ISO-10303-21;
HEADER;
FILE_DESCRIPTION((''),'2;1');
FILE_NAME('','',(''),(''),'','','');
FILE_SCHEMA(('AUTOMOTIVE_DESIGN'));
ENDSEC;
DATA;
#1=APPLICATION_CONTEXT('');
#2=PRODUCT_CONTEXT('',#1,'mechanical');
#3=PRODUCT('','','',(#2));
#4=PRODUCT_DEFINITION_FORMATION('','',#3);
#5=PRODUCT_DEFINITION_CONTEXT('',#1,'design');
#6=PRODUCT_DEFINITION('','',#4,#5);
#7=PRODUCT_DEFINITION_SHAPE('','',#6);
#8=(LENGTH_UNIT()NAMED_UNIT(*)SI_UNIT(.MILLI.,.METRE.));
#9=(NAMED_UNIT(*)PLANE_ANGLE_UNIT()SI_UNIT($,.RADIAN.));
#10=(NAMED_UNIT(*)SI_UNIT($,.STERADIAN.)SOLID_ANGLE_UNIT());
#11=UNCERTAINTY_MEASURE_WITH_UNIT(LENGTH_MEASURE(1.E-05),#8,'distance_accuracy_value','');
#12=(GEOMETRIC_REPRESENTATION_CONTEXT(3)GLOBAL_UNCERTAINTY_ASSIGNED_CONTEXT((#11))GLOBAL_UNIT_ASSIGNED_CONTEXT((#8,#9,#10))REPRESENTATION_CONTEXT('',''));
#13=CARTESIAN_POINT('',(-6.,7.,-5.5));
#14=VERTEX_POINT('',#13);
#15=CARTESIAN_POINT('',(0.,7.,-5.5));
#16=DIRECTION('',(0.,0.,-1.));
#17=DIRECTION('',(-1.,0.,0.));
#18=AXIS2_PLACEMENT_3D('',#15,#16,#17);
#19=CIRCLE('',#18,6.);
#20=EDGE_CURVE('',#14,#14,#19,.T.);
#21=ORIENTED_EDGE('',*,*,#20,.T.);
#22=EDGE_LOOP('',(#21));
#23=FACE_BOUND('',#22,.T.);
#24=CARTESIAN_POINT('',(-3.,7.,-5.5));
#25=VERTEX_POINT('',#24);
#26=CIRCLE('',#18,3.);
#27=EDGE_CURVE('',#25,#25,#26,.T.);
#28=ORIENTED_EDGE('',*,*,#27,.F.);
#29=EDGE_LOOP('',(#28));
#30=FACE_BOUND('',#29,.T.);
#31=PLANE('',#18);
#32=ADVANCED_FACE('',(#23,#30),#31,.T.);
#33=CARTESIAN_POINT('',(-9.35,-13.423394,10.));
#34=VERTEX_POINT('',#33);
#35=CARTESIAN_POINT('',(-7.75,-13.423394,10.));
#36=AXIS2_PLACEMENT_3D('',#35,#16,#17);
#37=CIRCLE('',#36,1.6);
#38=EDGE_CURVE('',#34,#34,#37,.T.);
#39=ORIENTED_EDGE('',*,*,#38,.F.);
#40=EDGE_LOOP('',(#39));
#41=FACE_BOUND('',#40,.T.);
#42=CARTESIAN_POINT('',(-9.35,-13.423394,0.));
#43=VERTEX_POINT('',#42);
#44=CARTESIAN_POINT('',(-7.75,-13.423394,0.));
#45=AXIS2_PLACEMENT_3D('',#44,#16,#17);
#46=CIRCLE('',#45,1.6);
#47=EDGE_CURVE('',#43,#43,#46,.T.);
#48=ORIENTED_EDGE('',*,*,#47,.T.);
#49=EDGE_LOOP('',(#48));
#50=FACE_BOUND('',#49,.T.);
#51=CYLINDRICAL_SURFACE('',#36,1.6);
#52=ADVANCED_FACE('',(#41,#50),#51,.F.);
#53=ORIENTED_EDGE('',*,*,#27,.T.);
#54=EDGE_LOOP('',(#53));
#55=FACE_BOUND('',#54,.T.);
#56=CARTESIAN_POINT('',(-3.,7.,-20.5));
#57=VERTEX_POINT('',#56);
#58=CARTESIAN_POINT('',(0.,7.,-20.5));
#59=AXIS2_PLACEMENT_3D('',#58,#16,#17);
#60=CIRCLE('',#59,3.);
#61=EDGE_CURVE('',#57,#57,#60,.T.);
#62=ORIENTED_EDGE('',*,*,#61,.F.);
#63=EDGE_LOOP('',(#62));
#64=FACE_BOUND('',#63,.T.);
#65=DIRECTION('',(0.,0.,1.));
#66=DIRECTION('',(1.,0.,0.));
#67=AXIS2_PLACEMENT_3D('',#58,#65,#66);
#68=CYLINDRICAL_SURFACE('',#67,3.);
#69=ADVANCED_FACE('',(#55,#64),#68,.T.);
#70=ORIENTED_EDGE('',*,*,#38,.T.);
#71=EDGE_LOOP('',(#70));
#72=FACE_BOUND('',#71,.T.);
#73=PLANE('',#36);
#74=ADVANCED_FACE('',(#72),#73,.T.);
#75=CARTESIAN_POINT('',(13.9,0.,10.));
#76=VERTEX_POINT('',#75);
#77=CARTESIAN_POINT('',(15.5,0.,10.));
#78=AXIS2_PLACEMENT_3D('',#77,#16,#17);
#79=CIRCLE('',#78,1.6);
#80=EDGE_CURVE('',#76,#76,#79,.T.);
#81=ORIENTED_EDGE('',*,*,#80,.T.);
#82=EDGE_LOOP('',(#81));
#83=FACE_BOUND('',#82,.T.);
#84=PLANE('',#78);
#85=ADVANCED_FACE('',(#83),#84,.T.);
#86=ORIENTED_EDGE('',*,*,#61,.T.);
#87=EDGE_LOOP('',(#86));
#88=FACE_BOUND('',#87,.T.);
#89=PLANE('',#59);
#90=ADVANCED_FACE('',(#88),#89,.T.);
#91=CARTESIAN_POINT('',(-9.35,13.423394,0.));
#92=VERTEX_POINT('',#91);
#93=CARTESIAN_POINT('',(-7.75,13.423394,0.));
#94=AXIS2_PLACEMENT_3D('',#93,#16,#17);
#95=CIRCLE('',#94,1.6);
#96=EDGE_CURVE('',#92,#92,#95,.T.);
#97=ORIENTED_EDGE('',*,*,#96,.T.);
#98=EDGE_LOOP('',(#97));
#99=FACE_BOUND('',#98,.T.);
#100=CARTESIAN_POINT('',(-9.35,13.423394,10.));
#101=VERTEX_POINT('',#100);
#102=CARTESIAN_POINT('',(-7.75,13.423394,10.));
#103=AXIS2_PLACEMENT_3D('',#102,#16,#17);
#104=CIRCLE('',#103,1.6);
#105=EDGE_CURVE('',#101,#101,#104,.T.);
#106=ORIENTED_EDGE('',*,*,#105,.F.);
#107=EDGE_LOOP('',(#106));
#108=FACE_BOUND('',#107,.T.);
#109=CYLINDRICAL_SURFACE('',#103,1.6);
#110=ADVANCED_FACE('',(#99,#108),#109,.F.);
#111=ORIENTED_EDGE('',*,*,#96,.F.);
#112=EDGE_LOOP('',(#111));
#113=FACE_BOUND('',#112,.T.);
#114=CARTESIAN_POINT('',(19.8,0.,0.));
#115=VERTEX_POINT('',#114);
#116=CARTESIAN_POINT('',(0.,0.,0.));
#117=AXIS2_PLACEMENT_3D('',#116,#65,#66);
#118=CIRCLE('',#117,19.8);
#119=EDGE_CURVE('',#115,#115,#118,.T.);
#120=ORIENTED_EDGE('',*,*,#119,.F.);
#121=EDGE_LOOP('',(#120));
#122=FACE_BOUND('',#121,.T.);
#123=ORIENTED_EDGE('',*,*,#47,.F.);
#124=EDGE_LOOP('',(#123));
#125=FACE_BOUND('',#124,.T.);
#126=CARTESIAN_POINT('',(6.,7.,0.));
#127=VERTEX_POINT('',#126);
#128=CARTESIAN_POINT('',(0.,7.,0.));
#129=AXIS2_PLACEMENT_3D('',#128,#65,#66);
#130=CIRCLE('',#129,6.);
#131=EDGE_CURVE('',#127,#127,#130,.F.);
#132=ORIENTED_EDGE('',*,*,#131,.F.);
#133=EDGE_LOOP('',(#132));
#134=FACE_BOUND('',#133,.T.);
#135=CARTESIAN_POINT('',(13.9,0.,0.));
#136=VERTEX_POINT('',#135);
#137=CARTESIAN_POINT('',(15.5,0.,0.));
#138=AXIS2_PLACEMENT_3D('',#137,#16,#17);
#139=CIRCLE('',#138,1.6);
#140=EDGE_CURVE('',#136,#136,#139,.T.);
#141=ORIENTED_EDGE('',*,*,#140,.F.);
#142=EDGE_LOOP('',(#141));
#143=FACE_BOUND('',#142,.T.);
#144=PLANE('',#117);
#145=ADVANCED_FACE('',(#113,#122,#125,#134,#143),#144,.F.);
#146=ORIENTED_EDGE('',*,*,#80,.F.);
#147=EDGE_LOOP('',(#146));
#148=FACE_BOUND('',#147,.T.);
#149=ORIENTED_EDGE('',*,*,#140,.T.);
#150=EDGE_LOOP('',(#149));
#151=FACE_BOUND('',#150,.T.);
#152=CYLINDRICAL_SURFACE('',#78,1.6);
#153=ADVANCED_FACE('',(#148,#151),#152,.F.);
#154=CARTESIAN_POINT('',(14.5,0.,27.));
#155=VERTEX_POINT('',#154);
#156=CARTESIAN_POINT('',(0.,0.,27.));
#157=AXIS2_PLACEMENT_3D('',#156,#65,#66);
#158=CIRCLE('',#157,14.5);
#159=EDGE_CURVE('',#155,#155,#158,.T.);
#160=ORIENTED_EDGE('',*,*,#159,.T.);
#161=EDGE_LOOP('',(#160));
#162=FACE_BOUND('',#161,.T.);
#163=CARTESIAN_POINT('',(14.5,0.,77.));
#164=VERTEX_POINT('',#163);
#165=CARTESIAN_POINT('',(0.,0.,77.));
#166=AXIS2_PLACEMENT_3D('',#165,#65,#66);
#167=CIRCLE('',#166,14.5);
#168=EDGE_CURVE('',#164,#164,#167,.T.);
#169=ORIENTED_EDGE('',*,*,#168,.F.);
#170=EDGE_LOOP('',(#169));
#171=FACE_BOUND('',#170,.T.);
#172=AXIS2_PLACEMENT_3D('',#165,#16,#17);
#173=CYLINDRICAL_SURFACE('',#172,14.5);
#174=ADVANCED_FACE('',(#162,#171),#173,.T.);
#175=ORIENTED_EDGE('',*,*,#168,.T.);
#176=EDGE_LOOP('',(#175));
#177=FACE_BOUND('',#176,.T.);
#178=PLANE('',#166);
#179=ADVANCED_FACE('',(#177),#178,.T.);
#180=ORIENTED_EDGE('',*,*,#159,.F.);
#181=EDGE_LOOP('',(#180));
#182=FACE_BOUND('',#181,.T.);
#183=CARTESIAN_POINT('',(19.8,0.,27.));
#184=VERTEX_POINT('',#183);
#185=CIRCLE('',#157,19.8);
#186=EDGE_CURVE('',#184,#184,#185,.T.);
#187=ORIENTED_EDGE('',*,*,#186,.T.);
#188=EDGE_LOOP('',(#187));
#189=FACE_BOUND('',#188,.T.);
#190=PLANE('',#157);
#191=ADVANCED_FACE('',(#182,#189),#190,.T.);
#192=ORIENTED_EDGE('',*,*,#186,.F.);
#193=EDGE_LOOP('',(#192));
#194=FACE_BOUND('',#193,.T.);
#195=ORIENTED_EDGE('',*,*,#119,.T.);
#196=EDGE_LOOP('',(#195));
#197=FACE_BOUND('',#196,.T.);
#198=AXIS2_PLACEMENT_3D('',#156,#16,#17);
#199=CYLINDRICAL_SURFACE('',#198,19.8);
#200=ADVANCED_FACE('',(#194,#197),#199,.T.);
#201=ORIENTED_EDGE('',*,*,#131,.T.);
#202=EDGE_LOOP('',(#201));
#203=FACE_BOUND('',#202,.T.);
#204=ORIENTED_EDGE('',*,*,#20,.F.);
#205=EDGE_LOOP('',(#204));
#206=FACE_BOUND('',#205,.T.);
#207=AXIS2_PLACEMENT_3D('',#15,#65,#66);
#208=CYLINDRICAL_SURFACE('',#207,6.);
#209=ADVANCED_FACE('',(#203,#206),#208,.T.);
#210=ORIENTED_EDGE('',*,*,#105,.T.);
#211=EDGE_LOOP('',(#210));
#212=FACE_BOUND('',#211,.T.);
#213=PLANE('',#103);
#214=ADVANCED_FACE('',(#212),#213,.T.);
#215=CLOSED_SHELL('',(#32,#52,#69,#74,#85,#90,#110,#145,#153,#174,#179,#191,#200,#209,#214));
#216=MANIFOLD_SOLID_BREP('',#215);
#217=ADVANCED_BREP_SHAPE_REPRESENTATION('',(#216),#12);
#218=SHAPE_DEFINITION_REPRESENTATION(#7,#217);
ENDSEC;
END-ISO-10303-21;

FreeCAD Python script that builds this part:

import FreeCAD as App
import Part
import Sketcher
from FreeCAD import Vector

doc = App.newDocument("Part")
body = doc.addObject("PartDesign::Body", "Body")

# Sketch on XY plane
sketch1 = doc.addObject("Sketcher::SketchObject", "Sketch")
body.addObject(sketch1)
sketch1.AttachmentSupport = (doc.XY_Plane, [""])
sketch1.MapMode = "FlatFace"
sketch1.addGeometry(Part.Circle(Vector(0, 0, 0), Vector(0, 0, 1), 20), False)
sketch1.addConstraint([
    Sketcher.Constraint("Coincident", 0, 3, -1, 1),
    Sketcher.Constraint("Diameter", 0, 39.6),
])
pad1 = doc.addObject("PartDesign::Pad", "Pad")
body.addObject(pad1)
pad1.Profile = sketch1
pad1.Length = 27

# Sketch on XY plane
sketch2 = doc.addObject("Sketcher::SketchObject", "Sketch001")
body.addObject(sketch2)
sketch2.AttachmentSupport = (doc.XY_Plane, [""])
sketch2.MapMode = "FlatFace"
sketch2.AttachmentOffset = App.Placement(Vector(0, 0, 27), App.Rotation())
sketch2.addGeometry(Part.Circle(Vector(0, 0, 0), Vector(0, 0, 1), 14), False)
sketch2.addConstraint([
    Sketcher.Constraint("Coincident", 0, 3, -1, 1),
    Sketcher.Constraint("Diameter", 0, 29.0),
])
pad2 = doc.addObject("PartDesign::Pad", "Pad001")
body.addObject(pad2)
pad2.Profile = sketch2
pad2.Length = 50

# Sketch on XY plane
sketch3 = doc.addObject("Sketcher::SketchObject", "Sketch002")
body.addObject(sketch3)
sketch3.AttachmentSupport = (doc.XY_Plane, [""])
sketch3.MapMode = "FlatFace"
sketch3.addGeometry([
    Part.Circle(Vector(15.5, 0, 0), Vector(0, 0, 1), 1.6),
    Part.Circle(Vector(-7.8, 13.4, 0), Vector(0, 0, 1), 1.6),
    Part.Circle(Vector(-7.8, -13.4, 0), Vector(0, 0, 1), 1.6),
], False)
sketch3.addConstraint([
    Sketcher.Constraint("Equal", 0, 1),
    Sketcher.Constraint("Equal", 1, 2),
    Sketcher.Constraint("Symmetric", 1, 3, 2, 3, -1),
    Sketcher.Constraint("PointOnObject", 0, 3, -1),
    Sketcher.Constraint("Diameter", 0, 3.2),
    Sketcher.Constraint("DistanceX", -1, 1, 0, 3, 15.5),
    Sketcher.Constraint("DistanceX", 1, 3, -1, 1, 7.75),
    Sketcher.Constraint("DistanceY", -1, 1, 1, 3, 13.423394),
])
pocket1 = doc.addObject("PartDesign::Pocket", "Pocket")
body.addObject(pocket1)
pocket1.Profile = sketch3
pocket1.Length = 10
pocket1.Reversed = True

# Sketch on XY plane
sketch4 = doc.addObject("Sketcher::SketchObject", "Sketch003")
body.addObject(sketch4)
sketch4.AttachmentSupport = (doc.XY_Plane, [""])
sketch4.MapMode = "FlatFace"
sketch4.addGeometry(Part.Circle(Vector(0, 7, 0), Vector(0, 0, 1), 6), False)
sketch4.addConstraint([
    Sketcher.Constraint("PointOnObject", 0, 3, -2),
    Sketcher.Constraint("Diameter", 0, 12.0),
    Sketcher.Constraint("DistanceY", -1, 1, 0, 3, 7.0),
])
pad3 = doc.addObject("PartDesign::Pad", "Pad002")
body.addObject(pad3)
pad3.Profile = sketch4
pad3.Length = 5.5
pad3.Reversed = True

# Sketch on XY plane
sketch5 = doc.addObject("Sketcher::SketchObject", "Sketch004")
body.addObject(sketch5)
sketch5.AttachmentSupport = (doc.XY_Plane, [""])
sketch5.MapMode = "FlatFace"
sketch5.AttachmentOffset = App.Placement(Vector(0, 0, -5.5), App.Rotation())
sketch5.addGeometry(Part.Circle(Vector(0, 7, 0), Vector(0, 0, 1), 3), False)
sketch5.addConstraint([
    Sketcher.Constraint("PointOnObject", 0, 3, -2),
    Sketcher.Constraint("Diameter", 0, 6.0),
    Sketcher.Constraint("DistanceY", -1, 1, 0, 3, 7.0),
])
pad4 = doc.addObject("PartDesign::Pad", "Pad003")
body.addObject(pad4)
pad4.Profile = sketch5
pad4.Length = 15
pad4.Reversed = True

doc.recompute()
